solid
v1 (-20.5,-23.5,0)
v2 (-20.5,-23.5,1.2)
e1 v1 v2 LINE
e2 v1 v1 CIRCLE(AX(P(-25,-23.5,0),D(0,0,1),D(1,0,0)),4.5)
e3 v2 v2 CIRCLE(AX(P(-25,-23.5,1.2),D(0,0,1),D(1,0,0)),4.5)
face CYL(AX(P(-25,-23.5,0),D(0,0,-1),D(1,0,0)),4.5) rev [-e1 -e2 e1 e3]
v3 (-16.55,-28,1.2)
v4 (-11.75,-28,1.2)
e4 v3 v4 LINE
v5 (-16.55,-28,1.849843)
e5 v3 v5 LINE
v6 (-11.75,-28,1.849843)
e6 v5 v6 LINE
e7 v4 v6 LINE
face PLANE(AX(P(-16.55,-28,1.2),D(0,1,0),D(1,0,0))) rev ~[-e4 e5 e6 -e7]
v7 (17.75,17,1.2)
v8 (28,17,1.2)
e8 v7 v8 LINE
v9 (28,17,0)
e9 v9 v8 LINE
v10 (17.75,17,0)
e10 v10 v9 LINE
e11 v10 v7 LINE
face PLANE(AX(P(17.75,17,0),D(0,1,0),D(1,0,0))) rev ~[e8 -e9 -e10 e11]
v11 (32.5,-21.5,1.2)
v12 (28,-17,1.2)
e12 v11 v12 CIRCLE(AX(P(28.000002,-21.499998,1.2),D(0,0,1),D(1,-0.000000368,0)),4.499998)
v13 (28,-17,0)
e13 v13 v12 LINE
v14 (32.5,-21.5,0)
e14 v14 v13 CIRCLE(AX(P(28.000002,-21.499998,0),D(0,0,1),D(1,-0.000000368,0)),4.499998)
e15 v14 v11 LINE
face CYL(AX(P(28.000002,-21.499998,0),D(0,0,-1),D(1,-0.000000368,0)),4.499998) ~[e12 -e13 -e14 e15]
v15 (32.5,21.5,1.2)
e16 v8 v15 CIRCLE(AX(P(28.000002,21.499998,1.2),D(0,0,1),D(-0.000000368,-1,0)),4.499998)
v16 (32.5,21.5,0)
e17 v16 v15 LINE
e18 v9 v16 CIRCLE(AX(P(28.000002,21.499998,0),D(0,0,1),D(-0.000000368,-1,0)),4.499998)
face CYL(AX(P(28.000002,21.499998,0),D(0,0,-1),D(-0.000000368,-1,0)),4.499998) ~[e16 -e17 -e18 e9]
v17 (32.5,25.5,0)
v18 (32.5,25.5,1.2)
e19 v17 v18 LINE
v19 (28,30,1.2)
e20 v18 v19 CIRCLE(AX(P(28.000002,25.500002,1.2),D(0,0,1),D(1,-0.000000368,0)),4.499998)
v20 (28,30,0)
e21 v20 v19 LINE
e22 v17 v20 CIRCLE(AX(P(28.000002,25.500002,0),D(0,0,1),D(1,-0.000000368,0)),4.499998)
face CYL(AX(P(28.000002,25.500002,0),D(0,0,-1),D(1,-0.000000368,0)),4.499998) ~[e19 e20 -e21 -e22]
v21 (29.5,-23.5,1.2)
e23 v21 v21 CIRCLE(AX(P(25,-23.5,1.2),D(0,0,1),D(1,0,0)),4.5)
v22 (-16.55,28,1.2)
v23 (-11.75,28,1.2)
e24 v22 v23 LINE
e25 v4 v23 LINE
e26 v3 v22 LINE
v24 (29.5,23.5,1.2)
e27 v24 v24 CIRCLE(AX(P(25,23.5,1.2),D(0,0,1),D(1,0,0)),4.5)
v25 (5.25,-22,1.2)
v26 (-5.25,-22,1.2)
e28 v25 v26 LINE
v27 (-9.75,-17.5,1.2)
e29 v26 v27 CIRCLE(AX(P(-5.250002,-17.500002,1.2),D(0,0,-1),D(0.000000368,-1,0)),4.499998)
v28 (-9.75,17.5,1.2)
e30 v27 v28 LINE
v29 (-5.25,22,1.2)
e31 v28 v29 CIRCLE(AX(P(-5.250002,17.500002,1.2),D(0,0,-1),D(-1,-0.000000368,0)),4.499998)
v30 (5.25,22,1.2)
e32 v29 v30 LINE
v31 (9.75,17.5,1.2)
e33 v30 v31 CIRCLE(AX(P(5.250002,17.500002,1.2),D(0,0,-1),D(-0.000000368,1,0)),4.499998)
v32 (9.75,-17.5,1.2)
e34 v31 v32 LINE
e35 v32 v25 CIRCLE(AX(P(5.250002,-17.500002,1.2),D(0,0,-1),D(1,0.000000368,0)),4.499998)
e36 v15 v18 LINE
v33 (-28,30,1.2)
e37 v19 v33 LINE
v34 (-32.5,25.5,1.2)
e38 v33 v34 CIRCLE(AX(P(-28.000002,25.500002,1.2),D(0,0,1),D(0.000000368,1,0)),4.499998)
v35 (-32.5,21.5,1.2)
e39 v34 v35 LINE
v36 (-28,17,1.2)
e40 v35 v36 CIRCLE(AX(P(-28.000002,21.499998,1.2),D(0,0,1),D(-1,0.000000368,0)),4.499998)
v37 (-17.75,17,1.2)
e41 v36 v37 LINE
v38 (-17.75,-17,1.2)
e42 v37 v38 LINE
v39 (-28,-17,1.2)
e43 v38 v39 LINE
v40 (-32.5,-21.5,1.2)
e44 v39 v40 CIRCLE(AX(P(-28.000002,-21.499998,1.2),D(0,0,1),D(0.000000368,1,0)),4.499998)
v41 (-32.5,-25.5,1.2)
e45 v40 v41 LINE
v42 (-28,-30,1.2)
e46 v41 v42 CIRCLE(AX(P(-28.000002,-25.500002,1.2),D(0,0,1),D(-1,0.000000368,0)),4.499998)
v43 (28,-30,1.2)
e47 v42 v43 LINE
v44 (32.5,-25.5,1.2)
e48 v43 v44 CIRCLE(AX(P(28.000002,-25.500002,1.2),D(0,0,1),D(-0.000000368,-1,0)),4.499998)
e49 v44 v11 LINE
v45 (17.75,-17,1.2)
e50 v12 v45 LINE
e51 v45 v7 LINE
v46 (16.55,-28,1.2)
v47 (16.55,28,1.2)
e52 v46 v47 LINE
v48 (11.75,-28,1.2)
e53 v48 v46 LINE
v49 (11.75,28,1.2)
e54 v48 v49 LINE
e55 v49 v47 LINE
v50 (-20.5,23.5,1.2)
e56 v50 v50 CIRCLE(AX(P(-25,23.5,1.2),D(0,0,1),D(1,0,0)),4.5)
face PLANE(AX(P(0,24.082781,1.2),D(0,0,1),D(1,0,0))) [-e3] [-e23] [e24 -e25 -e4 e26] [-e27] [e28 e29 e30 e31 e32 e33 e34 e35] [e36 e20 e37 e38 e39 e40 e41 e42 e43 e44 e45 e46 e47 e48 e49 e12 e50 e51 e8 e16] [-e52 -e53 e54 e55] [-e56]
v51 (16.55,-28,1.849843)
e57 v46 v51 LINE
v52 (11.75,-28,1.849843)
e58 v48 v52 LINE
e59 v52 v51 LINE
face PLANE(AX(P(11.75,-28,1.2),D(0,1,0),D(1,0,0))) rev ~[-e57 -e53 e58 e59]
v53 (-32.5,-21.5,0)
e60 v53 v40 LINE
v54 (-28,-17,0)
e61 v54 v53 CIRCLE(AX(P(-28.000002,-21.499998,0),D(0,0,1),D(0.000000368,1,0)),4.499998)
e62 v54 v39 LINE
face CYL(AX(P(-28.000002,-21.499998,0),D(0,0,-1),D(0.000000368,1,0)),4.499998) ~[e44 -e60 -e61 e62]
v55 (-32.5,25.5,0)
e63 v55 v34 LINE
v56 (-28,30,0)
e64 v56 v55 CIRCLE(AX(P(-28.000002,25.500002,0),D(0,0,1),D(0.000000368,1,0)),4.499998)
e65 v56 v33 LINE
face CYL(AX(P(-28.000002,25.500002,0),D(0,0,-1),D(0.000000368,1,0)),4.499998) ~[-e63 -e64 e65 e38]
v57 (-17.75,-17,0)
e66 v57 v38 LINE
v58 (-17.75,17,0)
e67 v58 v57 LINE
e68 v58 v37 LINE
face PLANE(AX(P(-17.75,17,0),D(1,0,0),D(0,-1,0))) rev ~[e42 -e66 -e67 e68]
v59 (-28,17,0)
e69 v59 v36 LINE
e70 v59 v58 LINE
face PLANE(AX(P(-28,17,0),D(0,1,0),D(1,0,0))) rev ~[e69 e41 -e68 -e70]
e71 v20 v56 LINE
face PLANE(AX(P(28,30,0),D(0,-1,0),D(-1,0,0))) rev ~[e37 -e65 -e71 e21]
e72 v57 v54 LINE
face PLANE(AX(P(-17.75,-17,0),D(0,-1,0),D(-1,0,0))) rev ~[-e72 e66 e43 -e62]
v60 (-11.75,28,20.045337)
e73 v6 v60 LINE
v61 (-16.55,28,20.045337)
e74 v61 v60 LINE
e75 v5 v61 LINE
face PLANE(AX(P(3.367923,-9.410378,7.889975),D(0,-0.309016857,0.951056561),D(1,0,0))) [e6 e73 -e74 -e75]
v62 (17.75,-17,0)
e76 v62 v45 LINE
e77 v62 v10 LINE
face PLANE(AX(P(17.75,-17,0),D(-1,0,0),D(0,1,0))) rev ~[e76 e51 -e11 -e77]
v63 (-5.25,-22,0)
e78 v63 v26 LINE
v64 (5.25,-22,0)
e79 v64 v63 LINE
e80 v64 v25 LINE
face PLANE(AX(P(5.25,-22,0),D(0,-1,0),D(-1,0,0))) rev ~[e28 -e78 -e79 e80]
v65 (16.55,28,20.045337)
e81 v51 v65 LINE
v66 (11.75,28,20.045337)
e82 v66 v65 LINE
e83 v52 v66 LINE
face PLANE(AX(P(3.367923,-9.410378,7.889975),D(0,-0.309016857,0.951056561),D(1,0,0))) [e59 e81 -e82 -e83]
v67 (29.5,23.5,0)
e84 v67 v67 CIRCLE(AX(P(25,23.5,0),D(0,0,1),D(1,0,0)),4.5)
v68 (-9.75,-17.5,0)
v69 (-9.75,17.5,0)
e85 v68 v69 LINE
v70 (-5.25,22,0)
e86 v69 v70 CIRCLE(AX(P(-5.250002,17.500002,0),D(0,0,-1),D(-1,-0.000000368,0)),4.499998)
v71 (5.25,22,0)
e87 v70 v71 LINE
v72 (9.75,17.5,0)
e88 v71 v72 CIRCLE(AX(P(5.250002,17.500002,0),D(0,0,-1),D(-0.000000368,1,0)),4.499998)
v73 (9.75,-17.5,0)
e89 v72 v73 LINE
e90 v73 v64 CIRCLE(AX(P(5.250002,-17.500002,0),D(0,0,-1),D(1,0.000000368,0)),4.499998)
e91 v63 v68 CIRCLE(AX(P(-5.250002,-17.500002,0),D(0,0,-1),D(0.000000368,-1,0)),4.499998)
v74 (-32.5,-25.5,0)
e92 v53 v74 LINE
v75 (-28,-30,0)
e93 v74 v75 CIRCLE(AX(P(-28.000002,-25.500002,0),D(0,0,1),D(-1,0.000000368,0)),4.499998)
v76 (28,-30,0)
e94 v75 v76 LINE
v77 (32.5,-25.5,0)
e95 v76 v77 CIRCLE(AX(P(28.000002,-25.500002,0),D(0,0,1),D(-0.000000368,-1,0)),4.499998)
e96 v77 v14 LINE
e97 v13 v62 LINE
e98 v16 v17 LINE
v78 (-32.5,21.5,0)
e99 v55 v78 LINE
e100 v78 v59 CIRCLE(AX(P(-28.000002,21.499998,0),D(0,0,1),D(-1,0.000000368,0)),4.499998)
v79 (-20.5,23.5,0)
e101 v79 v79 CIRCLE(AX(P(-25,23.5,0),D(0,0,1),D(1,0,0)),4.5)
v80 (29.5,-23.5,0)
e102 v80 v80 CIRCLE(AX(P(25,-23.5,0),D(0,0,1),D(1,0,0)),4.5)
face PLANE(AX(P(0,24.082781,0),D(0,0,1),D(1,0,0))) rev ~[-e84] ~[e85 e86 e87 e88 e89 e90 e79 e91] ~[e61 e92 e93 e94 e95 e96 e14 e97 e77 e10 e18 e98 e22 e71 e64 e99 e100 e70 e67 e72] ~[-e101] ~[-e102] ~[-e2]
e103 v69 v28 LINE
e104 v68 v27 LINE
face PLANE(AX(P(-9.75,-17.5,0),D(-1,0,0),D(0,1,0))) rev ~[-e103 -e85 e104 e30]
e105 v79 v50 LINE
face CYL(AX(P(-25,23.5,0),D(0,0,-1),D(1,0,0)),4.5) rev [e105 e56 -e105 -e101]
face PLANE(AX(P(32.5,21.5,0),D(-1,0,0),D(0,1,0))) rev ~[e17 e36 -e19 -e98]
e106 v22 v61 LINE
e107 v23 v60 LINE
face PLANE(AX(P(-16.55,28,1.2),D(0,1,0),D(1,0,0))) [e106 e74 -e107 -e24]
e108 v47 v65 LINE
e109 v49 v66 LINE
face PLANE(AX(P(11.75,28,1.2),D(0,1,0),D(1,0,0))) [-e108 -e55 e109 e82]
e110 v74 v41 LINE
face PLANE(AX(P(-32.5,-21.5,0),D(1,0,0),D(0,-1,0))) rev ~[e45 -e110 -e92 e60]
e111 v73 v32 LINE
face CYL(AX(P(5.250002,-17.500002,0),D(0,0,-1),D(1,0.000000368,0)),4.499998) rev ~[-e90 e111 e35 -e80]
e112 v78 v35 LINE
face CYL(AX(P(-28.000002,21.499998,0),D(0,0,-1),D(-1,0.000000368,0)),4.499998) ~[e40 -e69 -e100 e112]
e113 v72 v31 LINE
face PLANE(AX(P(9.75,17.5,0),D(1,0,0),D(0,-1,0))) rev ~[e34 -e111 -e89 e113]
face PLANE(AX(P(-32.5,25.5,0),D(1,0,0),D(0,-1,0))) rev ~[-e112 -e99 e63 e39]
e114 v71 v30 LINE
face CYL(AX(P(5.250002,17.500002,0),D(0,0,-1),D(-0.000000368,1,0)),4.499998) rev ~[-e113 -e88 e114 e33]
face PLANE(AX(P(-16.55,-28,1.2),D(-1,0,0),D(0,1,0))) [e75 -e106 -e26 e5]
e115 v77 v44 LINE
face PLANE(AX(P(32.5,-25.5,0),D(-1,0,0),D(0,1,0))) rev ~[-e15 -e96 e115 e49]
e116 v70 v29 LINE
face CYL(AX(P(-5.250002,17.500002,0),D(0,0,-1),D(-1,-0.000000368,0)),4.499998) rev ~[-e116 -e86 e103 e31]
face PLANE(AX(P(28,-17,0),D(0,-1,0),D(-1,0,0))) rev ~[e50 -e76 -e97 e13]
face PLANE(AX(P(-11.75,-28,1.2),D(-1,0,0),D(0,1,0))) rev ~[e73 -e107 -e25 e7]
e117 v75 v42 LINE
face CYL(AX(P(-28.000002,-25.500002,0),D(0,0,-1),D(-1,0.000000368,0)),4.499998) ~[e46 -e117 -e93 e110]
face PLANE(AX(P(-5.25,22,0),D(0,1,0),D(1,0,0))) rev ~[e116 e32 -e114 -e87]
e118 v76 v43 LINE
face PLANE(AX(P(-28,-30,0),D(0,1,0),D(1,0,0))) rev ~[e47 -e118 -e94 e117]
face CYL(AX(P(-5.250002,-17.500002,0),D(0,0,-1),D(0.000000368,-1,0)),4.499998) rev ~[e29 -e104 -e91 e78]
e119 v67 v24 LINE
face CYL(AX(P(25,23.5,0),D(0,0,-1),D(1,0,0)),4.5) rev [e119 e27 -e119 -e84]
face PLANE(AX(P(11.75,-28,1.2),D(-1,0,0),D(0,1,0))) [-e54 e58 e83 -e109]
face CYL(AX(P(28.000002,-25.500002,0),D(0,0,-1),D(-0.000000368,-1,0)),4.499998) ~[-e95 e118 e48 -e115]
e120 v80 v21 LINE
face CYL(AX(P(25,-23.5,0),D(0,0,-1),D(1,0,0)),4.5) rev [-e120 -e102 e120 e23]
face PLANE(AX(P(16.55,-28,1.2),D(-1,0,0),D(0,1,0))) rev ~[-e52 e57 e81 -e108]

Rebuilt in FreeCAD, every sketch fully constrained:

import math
import FreeCAD as App
import Part
import Sketcher

V = App.Vector
Q = App.Units.Quantity


def add_polygon(sketch, points):
    """Adds a closed chain of lines whose ends are joined by coincident constraints."""
    first, n = sketch.GeometryCount, len(points)
    for a, b in zip(points, points[1:] + points[:1]):
        sketch.addGeometry(Part.LineSegment(App.Vector(*a, 0), App.Vector(*b, 0)), False)
    for i in range(n):
        sketch.addConstraint(Sketcher.Constraint("Coincident", first + i, 2, first + (i + 1) % n, 1))

doc = App.newDocument("Part")
params = doc.addObject("Spreadsheet::Sheet", "Params")
for row, (alias, value) in enumerate([
    ("sketch1_diameter", "9 mm"),
    ("sketch1_width", "56 mm"),
    ("sketch1_height", "4 mm"),
    ("sketch1_height2", "34 mm"),
    ("sketch1_height3", "35 mm"),
    ("pad1_length", "1.2 mm"),
    ("sketch2_height", "56 mm"),
    ("sketch2_width", "4.8 mm"),
    ("pad2_length", "25 mm"),
    ("pocket1_length", "50 mm"),
], start=1):
    params.set(f"A{row}", alias)
    params.set(f"B{row}", "=" + value)
    params.setAlias(f"B{row}", alias)

body = doc.addObject("PartDesign::Body", "Body")

# Sketch on XY plane
sketch1 = body.newObject("Sketcher::SketchObject", "Sketch")
sketch1.AttachmentSupport = (doc.getObject("XY_Plane"), [""])
sketch1.MapMode = "FlatFace"
sketch1.addGeometry([
    Part.LineSegment(V(28, 30, 0), V(-28, 30, 0)),  # 0
    Part.ArcOfCircle(Part.Circle(V(-28.000002, 25.500002, 0), V(0, 0, 1), 4.499998), math.radians(89.999979), math.radians(180.000021)),  # 1
    Part.LineSegment(V(-32.5, 25.5, 0), V(-32.5, 21.5, 0)),  # 2
    Part.ArcOfCircle(Part.Circle(V(-28.000002, 21.499998, 0), V(0, 0, 1), 4.499998), math.radians(179.999979), math.radians(270.000021)),  # 3
    Part.LineSegment(V(-28, 17, 0), V(-17.75, 17, 0)),  # 4
    Part.LineSegment(V(-17.75, 17, 0), V(-17.75, -17, 0)),  # 5
    Part.LineSegment(V(-17.75, -17, 0), V(-28, -17, 0)),  # 6
    Part.ArcOfCircle(Part.Circle(V(-28.000002, -21.499998, 0), V(0, 0, 1), 4.499998), math.radians(89.999979), math.radians(180.000021)),  # 7
    Part.LineSegment(V(-32.5, -21.5, 0), V(-32.5, -25.5, 0)),  # 8
    Part.ArcOfCircle(Part.Circle(V(-28.000002, -25.500002, 0), V(0, 0, 1), 4.499998), math.radians(179.999979), math.radians(270.000021)),  # 9
    Part.LineSegment(V(-28, -30, 0), V(28, -30, 0)),  # 10
    Part.ArcOfCircle(Part.Circle(V(28.000002, -25.500002, 0), V(0, 0, 1), 4.499998), math.radians(-90.000021), math.radians(0.000021)),  # 11
    Part.LineSegment(V(32.5, -25.5, 0), V(32.5, -21.5, 0)),  # 12
    Part.ArcOfCircle(Part.Circle(V(28.000002, -21.499998, 0), V(0, 0, 1), 4.499998), math.radians(-0.000021), math.radians(90.000021)),  # 13
    Part.LineSegment(V(28, -17, 0), V(17.75, -17, 0)),  # 14
    Part.LineSegment(V(17.75, -17, 0), V(17.75, 17, 0)),  # 15
    Part.LineSegment(V(17.75, 17, 0), V(28, 17, 0)),  # 16
    Part.ArcOfCircle(Part.Circle(V(28.000002, 21.499998, 0), V(0, 0, 1), 4.499998), math.radians(-90.000021), math.radians(0.000021)),  # 17
    Part.LineSegment(V(32.5, 21.5, 0), V(32.5, 25.5, 0)),  # 18
    Part.ArcOfCircle(Part.Circle(V(28.000002, 25.500002, 0), V(0, 0, 1), 4.499998), math.radians(-0.000021), math.radians(90.000021)),  # 19
    Part.Circle(V(-25, -23.5, 0), V(0, 0, 1), 4.5),  # 20
    Part.Circle(V(25, -23.5, 0), V(0, 0, 1), 4.5),  # 21
    Part.ArcOfCircle(Part.Circle(V(-5.250002, 17.500002, 0), V(0, 0, 1), 4.499998), math.radians(89.999979), math.radians(180.000021)),  # 22
    Part.LineSegment(V(-5.25, 22, 0), V(5.25, 22, 0)),  # 23
    Part.ArcOfCircle(Part.Circle(V(5.250002, 17.500002, 0), V(0, 0, 1), 4.499998), math.radians(-0.000021), math.radians(90.000021)),  # 24
    Part.LineSegment(V(9.75, 17.5, 0), V(9.75, -17.5, 0)),  # 25
    Part.ArcOfCircle(Part.Circle(V(5.250002, -17.500002, 0), V(0, 0, 1), 4.499998), math.radians(-90.000021), math.radians(0.000021)),  # 26
    Part.LineSegment(V(5.25, -22, 0), V(-5.25, -22, 0)),  # 27
    Part.ArcOfCircle(Part.Circle(V(-5.250002, -17.500002, 0), V(0, 0, 1), 4.499998), math.radians(179.999979), math.radians(270.000021)),  # 28
    Part.LineSegment(V(-9.75, -17.5, 0), V(-9.75, 17.5, 0)),  # 29
    Part.Circle(V(-25, 23.5, 0), V(0, 0, 1), 4.5),  # 30
    Part.Circle(V(25, 23.5, 0), V(0, 0, 1), 4.5),  # 31
], False)
sketch1.addConstraint([
    Sketcher.Constraint("Tangent", 0, 2, 1, 1),
    Sketcher.Constraint("Tangent", 1, 2, 2, 1),
    Sketcher.Constraint("Tangent", 2, 2, 3, 1),
    Sketcher.Constraint("Tangent", 3, 2, 4, 1),
    Sketcher.Constraint("Coincident", 4, 2, 5, 1),
    Sketcher.Constraint("Coincident", 5, 2, 6, 1),
    Sketcher.Constraint("Tangent", 6, 2, 7, 1),
    Sketcher.Constraint("Tangent", 7, 2, 8, 1),
    Sketcher.Constraint("Tangent", 8, 2, 9, 1),
    Sketcher.Constraint("Tangent", 9, 2, 10, 1),
    Sketcher.Constraint("Tangent", 10, 2, 11, 1),
    Sketcher.Constraint("Tangent", 11, 2, 12, 1),
    Sketcher.Constraint("Tangent", 12, 2, 13, 1),
    Sketcher.Constraint("Tangent", 13, 2, 14, 1),
    Sketcher.Constraint("Coincident", 14, 2, 15, 1),
    Sketcher.Constraint("Coincident", 15, 2, 16, 1),
    Sketcher.Constraint("Tangent", 16, 2, 17, 1),
    Sketcher.Constraint("Tangent", 17, 2, 18, 1),
    Sketcher.Constraint("Tangent", 18, 2, 19, 1),
    Sketcher.Constraint("Tangent", 19, 2, 0, 1),
    Sketcher.Constraint("Tangent", 22, 1, 23, 1),
    Sketcher.Constraint("Tangent", 23, 2, 24, 2),
    Sketcher.Constraint("Tangent", 24, 1, 25, 1),
    Sketcher.Constraint("Tangent", 25, 2, 26, 2),
    Sketcher.Constraint("Tangent", 26, 1, 27, 1),
    Sketcher.Constraint("Tangent", 27, 2, 28, 2),
    Sketcher.Constraint("Tangent", 28, 1, 29, 1),
    Sketcher.Constraint("Tangent", 29, 2, 22, 2),
    Sketcher.Constraint("Horizontal", 0),
    Sketcher.Constraint("Vertical", 2),
    Sketcher.Constraint("Horizontal", 4),
    Sketcher.Constraint("Vertical", 5),
    Sketcher.Constraint("Horizontal", 6),
    Sketcher.Constraint("Vertical", 8),
    Sketcher.Constraint("Horizontal", 10),
    Sketcher.Constraint("Vertical", 12),
    Sketcher.Constraint("Horizontal", 14),
    Sketcher.Constraint("Vertical", 15),
    Sketcher.Constraint("Horizontal", 16),
    Sketcher.Constraint("Vertical", 18),
    Sketcher.Constraint("Horizontal", 23),
    Sketcher.Constraint("Vertical", 25),
    Sketcher.Constraint("Horizontal", 27),
    Sketcher.Constraint("Vertical", 29),
    Sketcher.Constraint("Equal", 1, 3),
    Sketcher.Constraint("Equal", 3, 7),
    Sketcher.Constraint("Equal", 7, 9),
    Sketcher.Constraint("Equal", 9, 11),
    Sketcher.Constraint("Equal", 11, 13),
    Sketcher.Constraint("Equal", 13, 17),
    Sketcher.Constraint("Equal", 17, 19),
    Sketcher.Constraint("Equal", 19, 20),
    Sketcher.Constraint("Equal", 20, 21),
    Sketcher.Constraint("Equal", 21, 22),
    Sketcher.Constraint("Equal", 22, 24),
    Sketcher.Constraint("Equal", 24, 26),
    Sketcher.Constraint("Equal", 26, 28),
    Sketcher.Constraint("Equal", 28, 30),
    Sketcher.Constraint("Equal", 30, 31),
    Sketcher.Constraint("Symmetric", 1, 3, 11, 3, -1, 1),
    Sketcher.Constraint("Symmetric", 7, 3, 17, 3, -1, 1),
    Sketcher.Constraint("Symmetric", 22, 3, 26, 3, -1, 1),
    Sketcher.Constraint("Symmetric", 21, 3, 30, 3, -1, 1),
    Sketcher.Constraint("Symmetric", 20, 3, 31, 3, -1, 1),
    Sketcher.Constraint("Symmetric", 4, 2, 14, 2, -1, 1),
    Sketcher.Constraint("Symmetric", 7, 3, 13, 3, -2),
    Sketcher.Constraint("Symmetric", 20, 3, 21, 3, -2),
    Sketcher.Constraint("Diameter", 20, Q("9 mm")),
    Sketcher.Constraint("DistanceX", 0, 2, 0, 1, Q("56 mm")),
    Sketcher.Constraint("DistanceY", 2, 2, 2, 1, Q("4 mm")),
    Sketcher.Constraint("DistanceY", 5, 2, 5, 1, Q("34 mm")),
    Sketcher.Constraint("DistanceY", 25, 2, 25, 1, Q("35 mm")),
    Sketcher.Constraint("DistanceX", 23, 1, 23, 2, Q("10.5 mm")),
    Sketcher.Constraint("DistanceX", 20, 3, -1, 1, Q("25 mm")),
    Sketcher.Constraint("DistanceY", 20, 3, 7, 3, Q("2.000002 mm")),
    Sketcher.Constraint("DistanceX", 5, 2, 26, 3, Q("23.000002 mm")),
])
sketch1.setExpression("Constraints[67]", "Params.sketch1_diameter")
sketch1.setExpression("Constraints[68]", "Params.sketch1_width")
sketch1.setExpression("Constraints[69]", "Params.sketch1_height")
sketch1.setExpression("Constraints[70]", "Params.sketch1_height2")
sketch1.setExpression("Constraints[71]", "Params.sketch1_height3")
pad1 = body.newObject("PartDesign::Pad", "Pad")
pad1.Profile = sketch1
pad1.setExpression("Length", "Params.pad1_length")

# Sketch on XY plane
sketch2 = body.newObject("Sketcher::SketchObject", "Sketch001")
sketch2.AttachmentSupport = (doc.getObject("XY_Plane"), [""])
sketch2.MapMode = "FlatFace"
sketch2.AttachmentOffset = App.Placement(V(0, 0, 1.2), App.Rotation())
add_polygon(sketch2, [(11.75, 28), (11.75, -28), (16.55, -28), (16.55, 28)])  # lines 0-3
add_polygon(sketch2, [(-16.55, 28), (-16.55, -28), (-11.75, -28), (-11.75, 28)])  # lines 4-7
sketch2.addConstraint([
    Sketcher.Constraint("Vertical", 0),
    Sketcher.Constraint("Horizontal", 1),
    Sketcher.Constraint("Vertical", 2),
    Sketcher.Constraint("Horizontal", 3),
    Sketcher.Constraint("Vertical", 4),
    Sketcher.Constraint("Horizontal", 5),
    Sketcher.Constraint("Vertical", 6),
    Sketcher.Constraint("Horizontal", 7),
    Sketcher.Constraint("Symmetric", 2, 2, 4, 2, -1, 1),
    Sketcher.Constraint("Symmetric", 0, 2, 6, 2, -1, 1),
    Sketcher.Constraint("Horizontal", 1, 2, 4, 2),
    Sketcher.Constraint("DistanceY", 0, 2, 0, 1, Q("56 mm")),
    Sketcher.Constraint("DistanceX", 1, 1, 1, 2, Q("4.8 mm")),
    Sketcher.Constraint("DistanceX", 4, 2, 0, 2, Q("28.3 mm")),
])
sketch2.setExpression("Constraints[19]", "Params.sketch2_height")
sketch2.setExpression("Constraints[20]", "Params.sketch2_width")
pad2 = body.newObject("PartDesign::Pad", "Pad001")
pad2.Profile = sketch2
pad2.setExpression("Length", "Params.pad2_length")

# Sketch on an angled plane
sketch3 = body.newObject("Sketcher::SketchObject", "Sketch002")
sketch3.Placement = App.Placement(V(0, -3.217416, 9.902189), App.Rotation(V(1, 0, 0), V(0, 0.951056561, 0.309016857), V(0, -0.309016857, 0.951056561), "ZXY"))
add_polygon(sketch3, [(-47.448118, 47.961024), (-47.448118, -60.984354), (54.183963, -60.984354), (54.183963, 47.961024)])  # lines 0-3
sketch3.addConstraint([
    Sketcher.Constraint("Vertical", 0),
    Sketcher.Constraint("Horizontal", 1),
    Sketcher.Constraint("Vertical", 2),
    Sketcher.Constraint("Horizontal", 3),
    Sketcher.Constraint("DistanceX", 1, 1, 1, 2, Q("101.632081 mm")),
    Sketcher.Constraint("DistanceY", 0, 2, 0, 1, Q("108.945377 mm")),
    Sketcher.Constraint("DistanceX", 0, 2, -1, 1, Q("47.448118 mm")),
    Sketcher.Constraint("DistanceY", 0, 2, -1, 1, Q("60.984354 mm")),
])
pocket1 = body.newObject("PartDesign::Pocket", "Pocket")
pocket1.Profile = sketch3
pocket1.setExpression("Length", "Params.pocket1_length")
pocket1.Reversed = True

doc.recompute()
